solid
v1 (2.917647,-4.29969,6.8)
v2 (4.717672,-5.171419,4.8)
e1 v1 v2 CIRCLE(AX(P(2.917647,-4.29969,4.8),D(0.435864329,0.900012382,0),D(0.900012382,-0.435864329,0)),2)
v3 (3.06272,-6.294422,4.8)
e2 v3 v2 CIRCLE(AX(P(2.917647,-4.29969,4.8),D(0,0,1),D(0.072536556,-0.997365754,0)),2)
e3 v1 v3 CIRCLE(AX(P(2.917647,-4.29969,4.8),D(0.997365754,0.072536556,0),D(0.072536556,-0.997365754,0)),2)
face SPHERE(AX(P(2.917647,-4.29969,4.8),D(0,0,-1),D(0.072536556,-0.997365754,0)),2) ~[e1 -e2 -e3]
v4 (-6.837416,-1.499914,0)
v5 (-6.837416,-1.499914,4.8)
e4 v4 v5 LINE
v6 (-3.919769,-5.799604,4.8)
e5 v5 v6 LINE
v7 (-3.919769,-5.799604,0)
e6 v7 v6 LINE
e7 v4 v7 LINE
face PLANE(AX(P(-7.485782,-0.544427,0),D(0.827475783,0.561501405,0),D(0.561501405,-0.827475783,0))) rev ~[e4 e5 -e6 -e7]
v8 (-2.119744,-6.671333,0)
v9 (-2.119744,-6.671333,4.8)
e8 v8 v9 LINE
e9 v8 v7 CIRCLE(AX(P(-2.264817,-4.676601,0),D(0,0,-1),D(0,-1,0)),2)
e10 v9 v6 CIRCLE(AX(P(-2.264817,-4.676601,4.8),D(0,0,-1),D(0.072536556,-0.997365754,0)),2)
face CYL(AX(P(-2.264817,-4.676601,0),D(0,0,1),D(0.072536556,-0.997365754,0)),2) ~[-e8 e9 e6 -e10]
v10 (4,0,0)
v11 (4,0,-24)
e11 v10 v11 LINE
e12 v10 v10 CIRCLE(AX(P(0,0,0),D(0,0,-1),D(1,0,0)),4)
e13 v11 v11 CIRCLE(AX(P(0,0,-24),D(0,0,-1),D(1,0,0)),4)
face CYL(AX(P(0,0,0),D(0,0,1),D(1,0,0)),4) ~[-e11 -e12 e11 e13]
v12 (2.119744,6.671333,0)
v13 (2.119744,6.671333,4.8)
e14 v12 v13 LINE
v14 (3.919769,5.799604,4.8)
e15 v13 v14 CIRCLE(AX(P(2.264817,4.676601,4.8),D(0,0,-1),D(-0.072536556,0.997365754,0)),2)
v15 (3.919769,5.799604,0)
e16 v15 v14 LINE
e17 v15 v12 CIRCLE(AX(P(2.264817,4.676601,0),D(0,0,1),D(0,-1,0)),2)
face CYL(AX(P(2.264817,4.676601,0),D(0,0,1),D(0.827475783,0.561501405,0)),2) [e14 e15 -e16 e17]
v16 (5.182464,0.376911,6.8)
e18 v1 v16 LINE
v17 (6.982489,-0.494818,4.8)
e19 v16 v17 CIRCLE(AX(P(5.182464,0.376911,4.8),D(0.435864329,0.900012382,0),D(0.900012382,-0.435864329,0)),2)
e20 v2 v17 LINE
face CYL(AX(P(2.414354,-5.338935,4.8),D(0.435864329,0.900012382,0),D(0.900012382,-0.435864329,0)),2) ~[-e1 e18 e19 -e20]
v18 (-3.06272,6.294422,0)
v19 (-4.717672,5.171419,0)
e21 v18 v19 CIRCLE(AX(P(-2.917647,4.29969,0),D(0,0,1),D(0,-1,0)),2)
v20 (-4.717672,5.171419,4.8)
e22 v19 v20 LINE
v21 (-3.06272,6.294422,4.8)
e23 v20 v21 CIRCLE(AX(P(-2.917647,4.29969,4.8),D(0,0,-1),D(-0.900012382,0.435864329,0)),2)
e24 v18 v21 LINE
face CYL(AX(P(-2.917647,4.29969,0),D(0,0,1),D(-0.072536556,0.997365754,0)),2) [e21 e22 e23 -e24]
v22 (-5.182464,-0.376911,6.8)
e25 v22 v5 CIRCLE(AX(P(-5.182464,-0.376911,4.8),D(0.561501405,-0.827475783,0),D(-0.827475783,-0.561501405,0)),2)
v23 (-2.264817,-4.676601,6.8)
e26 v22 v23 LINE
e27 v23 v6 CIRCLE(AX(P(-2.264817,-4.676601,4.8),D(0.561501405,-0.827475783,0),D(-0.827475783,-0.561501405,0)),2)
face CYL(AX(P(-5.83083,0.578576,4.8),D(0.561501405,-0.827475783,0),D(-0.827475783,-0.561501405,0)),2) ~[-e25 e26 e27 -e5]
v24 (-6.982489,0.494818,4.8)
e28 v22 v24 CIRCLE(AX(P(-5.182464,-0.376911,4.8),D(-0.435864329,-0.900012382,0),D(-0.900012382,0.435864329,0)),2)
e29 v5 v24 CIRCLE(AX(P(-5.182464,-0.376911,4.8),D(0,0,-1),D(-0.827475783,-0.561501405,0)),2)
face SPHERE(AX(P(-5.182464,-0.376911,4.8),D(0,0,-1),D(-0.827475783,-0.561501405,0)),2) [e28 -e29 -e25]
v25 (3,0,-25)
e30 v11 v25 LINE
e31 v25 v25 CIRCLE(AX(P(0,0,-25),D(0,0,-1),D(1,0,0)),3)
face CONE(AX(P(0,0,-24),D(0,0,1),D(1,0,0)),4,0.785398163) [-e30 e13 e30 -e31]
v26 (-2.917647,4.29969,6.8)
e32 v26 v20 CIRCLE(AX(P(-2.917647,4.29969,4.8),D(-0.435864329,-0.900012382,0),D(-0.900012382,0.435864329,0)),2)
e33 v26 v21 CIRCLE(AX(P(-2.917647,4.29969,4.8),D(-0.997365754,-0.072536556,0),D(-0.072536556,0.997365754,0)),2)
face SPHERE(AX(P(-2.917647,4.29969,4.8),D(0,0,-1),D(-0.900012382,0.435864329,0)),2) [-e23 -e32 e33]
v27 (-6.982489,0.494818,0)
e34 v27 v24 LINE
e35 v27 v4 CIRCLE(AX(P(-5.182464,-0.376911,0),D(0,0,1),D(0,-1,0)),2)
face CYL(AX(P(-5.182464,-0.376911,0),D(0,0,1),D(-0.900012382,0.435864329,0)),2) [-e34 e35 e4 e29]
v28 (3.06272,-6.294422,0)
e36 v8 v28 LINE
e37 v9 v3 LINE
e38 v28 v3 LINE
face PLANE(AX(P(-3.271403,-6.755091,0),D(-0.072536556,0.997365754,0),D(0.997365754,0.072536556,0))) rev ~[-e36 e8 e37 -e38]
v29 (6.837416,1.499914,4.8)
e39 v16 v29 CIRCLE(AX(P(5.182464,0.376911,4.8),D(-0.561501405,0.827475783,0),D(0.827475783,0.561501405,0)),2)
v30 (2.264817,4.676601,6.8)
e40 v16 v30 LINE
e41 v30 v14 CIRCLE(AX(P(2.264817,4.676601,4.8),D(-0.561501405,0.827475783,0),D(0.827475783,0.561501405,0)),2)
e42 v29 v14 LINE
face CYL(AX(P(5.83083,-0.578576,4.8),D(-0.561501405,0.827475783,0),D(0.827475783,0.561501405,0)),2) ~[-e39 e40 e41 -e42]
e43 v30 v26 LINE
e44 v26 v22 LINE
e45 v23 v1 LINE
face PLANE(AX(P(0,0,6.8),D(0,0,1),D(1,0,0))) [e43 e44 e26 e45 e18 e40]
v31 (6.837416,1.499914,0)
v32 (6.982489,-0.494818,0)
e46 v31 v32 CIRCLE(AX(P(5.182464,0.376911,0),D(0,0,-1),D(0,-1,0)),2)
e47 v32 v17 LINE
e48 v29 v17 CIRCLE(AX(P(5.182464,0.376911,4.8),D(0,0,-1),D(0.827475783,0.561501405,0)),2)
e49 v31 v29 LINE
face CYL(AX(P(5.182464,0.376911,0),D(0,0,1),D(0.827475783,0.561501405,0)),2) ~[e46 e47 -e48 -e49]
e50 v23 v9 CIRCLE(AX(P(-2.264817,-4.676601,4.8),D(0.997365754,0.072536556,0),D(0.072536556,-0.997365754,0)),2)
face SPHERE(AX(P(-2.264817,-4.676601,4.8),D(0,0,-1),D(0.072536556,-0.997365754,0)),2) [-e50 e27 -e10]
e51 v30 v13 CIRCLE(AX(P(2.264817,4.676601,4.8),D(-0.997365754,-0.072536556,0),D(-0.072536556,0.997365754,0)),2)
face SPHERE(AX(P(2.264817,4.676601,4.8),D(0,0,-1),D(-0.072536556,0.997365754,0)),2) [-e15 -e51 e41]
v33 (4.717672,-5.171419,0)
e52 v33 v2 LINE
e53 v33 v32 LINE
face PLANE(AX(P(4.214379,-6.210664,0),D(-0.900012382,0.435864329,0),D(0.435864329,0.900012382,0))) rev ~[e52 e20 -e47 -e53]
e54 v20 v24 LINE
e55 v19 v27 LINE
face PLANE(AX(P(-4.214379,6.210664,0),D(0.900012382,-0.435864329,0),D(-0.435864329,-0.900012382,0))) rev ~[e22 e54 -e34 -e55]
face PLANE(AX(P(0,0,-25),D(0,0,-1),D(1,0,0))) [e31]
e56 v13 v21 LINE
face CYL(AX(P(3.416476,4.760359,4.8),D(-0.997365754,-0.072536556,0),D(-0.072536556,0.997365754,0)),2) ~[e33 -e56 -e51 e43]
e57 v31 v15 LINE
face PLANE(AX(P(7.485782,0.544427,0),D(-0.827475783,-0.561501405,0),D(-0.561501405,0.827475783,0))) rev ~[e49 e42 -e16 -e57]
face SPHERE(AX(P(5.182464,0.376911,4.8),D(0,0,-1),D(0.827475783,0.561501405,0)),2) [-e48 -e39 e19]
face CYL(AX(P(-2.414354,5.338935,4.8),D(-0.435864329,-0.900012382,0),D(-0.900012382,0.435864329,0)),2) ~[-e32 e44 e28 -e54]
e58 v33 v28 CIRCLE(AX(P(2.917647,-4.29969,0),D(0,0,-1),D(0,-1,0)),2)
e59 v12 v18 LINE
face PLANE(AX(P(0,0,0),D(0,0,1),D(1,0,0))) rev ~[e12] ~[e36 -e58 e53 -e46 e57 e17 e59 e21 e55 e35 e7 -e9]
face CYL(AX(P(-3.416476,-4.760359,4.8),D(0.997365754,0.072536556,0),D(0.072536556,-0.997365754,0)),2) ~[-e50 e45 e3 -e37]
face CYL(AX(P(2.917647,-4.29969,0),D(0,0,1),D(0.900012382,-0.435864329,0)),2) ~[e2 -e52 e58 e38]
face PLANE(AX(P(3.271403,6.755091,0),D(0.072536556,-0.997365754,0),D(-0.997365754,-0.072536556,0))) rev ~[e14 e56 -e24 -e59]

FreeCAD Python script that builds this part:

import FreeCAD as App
import Part
import Sketcher

V = App.Vector
Q = App.Units.Quantity


def edges_at(feature, points):
    """Names of the edges that pass closest to the given points."""
    edges = feature.Shape.Edges
    near = lambda p: min(range(len(edges)), key=lambda i: edges[i].distToShape(Part.Vertex(*p))[0])
    return sorted({f"Edge{near(p) + 1}" for p in points})


def add_polygon(sketch, points):
    """Adds a closed chain of lines whose ends are joined by coincident constraints."""
    first, n = sketch.GeometryCount, len(points)
    for a, b in zip(points, points[1:] + points[:1]):
        sketch.addGeometry(Part.LineSegment(App.Vector(*a, 0), App.Vector(*b, 0)), False)
    for i in range(n):
        sketch.addConstraint(Sketcher.Constraint("Coincident", first + i, 2, first + (i + 1) % n, 1))

doc = App.newDocument("Part")
body = doc.addObject("PartDesign::Body", "Body")

# Sketch on XY plane
sketch1 = body.newObject("Sketcher::SketchObject", "Sketch")
sketch1.AttachmentSupport = (doc.getObject("XY_Plane"), [""])
sketch1.MapMode = "FlatFace"
add_polygon(sketch1, [(7, 1), (3, 7), (-4, 6), (-7, -1), (-3, -7), (4, -6)])  # lines 0-5
sketch1.addConstraint(Sketcher.Constraint("Symmetric", 0, 2, 3, 2, -1, 1))
sketch1.addConstraint(Sketcher.Constraint("Symmetric", 1, 2, 4, 2, -1, 1))
sketch1.addConstraint(Sketcher.Constraint("Symmetric", 2, 2, 5, 2, -1, 1))
sketch1.addConstraint(Sketcher.Constraint("Equal", 0, 1))
sketch1.addConstraint(Sketcher.Constraint("Equal", 1, 2))
sketch1.addConstraint(Sketcher.Constraint("DistanceY", -1, 1, 0, 2, Q("6.755091 mm")))
sketch1.addConstraint(Sketcher.Constraint("DistanceX", 1, 2, -1, 1, Q("4.214379 mm")))
sketch1.addConstraint(Sketcher.Constraint("DistanceY", 2, 2, 1, 2, Q("6.755091 mm")))
sketch1.addConstraint(Sketcher.Constraint("DistanceX", 2, 2, 3, 2, Q("4.214379 mm")))
pad1 = body.newObject("PartDesign::Pad", "Pad")
pad1.Profile = sketch1
pad1.Length = 6.8

# Sketch on XY plane
sketch2 = body.newObject("Sketcher::SketchObject", "Sketch001")
sketch2.AttachmentSupport = (doc.getObject("XY_Plane"), [""])
sketch2.MapMode = "FlatFace"
sketch2.addGeometry(Part.Circle(V(0, 0, 0), V(0, 0, 1), 4), False)
sketch2.addConstraint(Sketcher.Constraint("Coincident", 0, 3, -1, 1))
sketch2.addConstraint(Sketcher.Constraint("Diameter", 0, Q("8 mm")))
pad2 = body.newObject("PartDesign::Pad", "Pad001")
pad2.Profile = sketch2
pad2.Length = 25
pad2.Reversed = True
doc.recompute()

chamfer = body.newObject("PartDesign::Chamfer", "Chamfer")
chamfer.Base = (pad2, edges_at(pad2, [(-4, 0, -25)]))
chamfer.Size = 1
doc.recompute()

fillet = body.newObject("PartDesign::Fillet", "Fillet")
fillet.Base = (chamfer, edges_at(chamfer, [
    (0.471, -6.483, 6.8),
    (-5.379, -3.65, 6.8),
    (-5.85, 2.833, 6.8),
    (-0.471, 6.483, 6.8),
    (5.379, 3.65, 6.8),
    (5.85, -2.833, 6.8),
    (7.486, 0.544, 3.4),
    (4.214, -6.211, 3.4),
    (-3.271, -6.755, 3.4),
    (-7.486, -0.544, 3.4),
    (-4.214, 6.211, 3.4),
    (3.271, 6.755, 3.4),
]))
fillet.Radius = 2

doc.recompute()
